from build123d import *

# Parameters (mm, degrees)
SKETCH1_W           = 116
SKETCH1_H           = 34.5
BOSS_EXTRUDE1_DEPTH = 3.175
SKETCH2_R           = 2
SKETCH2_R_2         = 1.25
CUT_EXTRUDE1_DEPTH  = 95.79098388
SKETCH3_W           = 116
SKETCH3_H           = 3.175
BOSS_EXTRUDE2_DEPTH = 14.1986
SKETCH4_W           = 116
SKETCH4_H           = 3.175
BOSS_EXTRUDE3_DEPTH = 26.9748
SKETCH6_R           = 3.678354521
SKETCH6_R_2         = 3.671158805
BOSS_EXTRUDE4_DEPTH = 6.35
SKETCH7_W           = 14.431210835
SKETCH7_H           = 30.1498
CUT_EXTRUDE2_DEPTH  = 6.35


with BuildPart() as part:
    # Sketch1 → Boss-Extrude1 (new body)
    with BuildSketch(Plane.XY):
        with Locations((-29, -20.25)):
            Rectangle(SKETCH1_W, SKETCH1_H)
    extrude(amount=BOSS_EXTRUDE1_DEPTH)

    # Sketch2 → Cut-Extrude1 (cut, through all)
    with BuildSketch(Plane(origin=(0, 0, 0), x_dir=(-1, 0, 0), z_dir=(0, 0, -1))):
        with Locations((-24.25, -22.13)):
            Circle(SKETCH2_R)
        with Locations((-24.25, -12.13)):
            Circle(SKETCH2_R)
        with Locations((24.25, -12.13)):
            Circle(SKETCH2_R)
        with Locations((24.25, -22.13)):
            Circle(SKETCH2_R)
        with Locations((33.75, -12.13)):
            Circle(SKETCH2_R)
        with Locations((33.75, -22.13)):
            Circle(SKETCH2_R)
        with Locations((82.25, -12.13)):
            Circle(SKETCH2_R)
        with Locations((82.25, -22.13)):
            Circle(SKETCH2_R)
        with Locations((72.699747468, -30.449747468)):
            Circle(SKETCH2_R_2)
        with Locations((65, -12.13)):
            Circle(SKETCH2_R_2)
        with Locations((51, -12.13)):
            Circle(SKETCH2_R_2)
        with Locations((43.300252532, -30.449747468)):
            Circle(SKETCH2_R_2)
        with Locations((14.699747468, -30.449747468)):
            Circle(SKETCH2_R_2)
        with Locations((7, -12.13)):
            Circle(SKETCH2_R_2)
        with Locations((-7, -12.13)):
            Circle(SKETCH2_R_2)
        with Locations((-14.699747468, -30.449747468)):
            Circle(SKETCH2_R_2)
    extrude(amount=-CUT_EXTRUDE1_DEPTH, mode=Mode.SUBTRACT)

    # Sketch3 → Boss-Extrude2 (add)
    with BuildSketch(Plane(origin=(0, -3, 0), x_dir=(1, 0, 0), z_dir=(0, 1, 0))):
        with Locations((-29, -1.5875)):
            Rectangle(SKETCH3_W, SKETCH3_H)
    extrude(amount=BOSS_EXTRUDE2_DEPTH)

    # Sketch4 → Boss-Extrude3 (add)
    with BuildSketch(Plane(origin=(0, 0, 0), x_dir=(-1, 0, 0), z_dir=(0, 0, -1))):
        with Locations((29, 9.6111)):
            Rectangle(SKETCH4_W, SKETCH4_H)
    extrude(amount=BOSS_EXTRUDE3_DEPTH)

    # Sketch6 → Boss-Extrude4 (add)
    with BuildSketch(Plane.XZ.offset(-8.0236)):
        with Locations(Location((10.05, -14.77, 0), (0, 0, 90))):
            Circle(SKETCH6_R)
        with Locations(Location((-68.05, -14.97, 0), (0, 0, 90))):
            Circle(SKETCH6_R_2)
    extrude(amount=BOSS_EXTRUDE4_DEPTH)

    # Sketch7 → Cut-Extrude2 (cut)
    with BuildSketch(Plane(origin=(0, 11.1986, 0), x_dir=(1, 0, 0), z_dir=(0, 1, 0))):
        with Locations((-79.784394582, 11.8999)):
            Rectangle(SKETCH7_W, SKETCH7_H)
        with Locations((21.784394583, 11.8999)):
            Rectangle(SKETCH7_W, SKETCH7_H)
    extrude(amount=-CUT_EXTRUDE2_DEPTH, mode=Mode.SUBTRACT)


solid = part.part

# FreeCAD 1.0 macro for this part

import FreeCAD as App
import Part
import Sketcher
Q = App.Units.Quantity

doc = App.newDocument("Part")
body = doc.addObject("PartDesign::Body", "Body")

# Sketch on XY plane
sketch1 = body.newObject("Sketcher::SketchObject", "Sketch")
sketch1.AttachmentSupport = (doc.getObject("XY_Plane"), [""])
sketch1.MapMode = "FlatFace"
sketch1.addGeometry([
    Part.LineSegment(App.Vector(-87, -3, 0), App.Vector(-87, -38, 0)),
    Part.LineSegment(App.Vector(-87, -38, 0), App.Vector(29, -38, 0)),
    Part.LineSegment(App.Vector(29, -38, 0), App.Vector(29, -3, 0)),
    Part.LineSegment(App.Vector(29, -3, 0), App.Vector(-87, -3, 0)),
], False)
sketch1.addConstraint([
    Sketcher.Constraint("Coincident", 0, 2, 1, 1),
    Sketcher.Constraint("Coincident", 1, 2, 2, 1),
    Sketcher.Constraint("Coincident", 2, 2, 3, 1),
    Sketcher.Constraint("Coincident", 3, 2, 0, 1),
    Sketcher.Constraint("Vertical", 0),
    Sketcher.Constraint("Horizontal", 1),
    Sketcher.Constraint("Vertical", 2),
    Sketcher.Constraint("Horizontal", 3),
    Sketcher.Constraint("DistanceX", 1, 1, 1, 2, 116.0),
    Sketcher.Constraint("DistanceY", 0, 2, 0, 1, 34.5),
    Sketcher.Constraint("DistanceX", 0, 2, -1, 1, 87.0),
    Sketcher.Constraint("DistanceY", 0, 2, -1, 1, 37.5),
])
pad1 = body.newObject("PartDesign::Pad", "Pad")
pad1.Profile = sketch1
pad1.Length = Q("0.125 in")

# Sketch on XY plane
sketch2 = body.newObject("Sketcher::SketchObject", "Sketch001")
sketch2.AttachmentSupport = (doc.getObject("XY_Plane"), [""])
sketch2.MapMode = "FlatFace"
sketch2.addGeometry([
    Part.Circle(App.Vector(24.2, -22.1, 0), App.Vector(0, 0, 1), 2),  # 0
    Part.Circle(App.Vector(24.2, -12.1, 0), App.Vector(0, 0, 1), 2),  # 1
    Part.Circle(App.Vector(-24.2, -12.1, 0), App.Vector(0, 0, 1), 2),  # 2
    Part.Circle(App.Vector(-24.2, -22.1, 0), App.Vector(0, 0, 1), 2),  # 3
    Part.Circle(App.Vector(-33.8, -12.1, 0), App.Vector(0, 0, 1), 2),  # 4
    Part.Circle(App.Vector(-33.8, -22.1, 0), App.Vector(0, 0, 1), 2),  # 5
    Part.Circle(App.Vector(-82.2, -12.1, 0), App.Vector(0, 0, 1), 2),  # 6
    Part.Circle(App.Vector(-82.2, -22.1, 0), App.Vector(0, 0, 1), 2),  # 7
    Part.Circle(App.Vector(-72.7, -30.4, 0), App.Vector(0, 0, 1), 1.2),  # 8
    Part.Circle(App.Vector(-65, -12.1, 0), App.Vector(0, 0, 1), 1.2),  # 9
    Part.Circle(App.Vector(-51, -12.1, 0), App.Vector(0, 0, 1), 1.2),  # 10
    Part.Circle(App.Vector(-43.3, -30.4, 0), App.Vector(0, 0, 1), 1.2),  # 11
    Part.Circle(App.Vector(-14.7, -30.4, 0), App.Vector(0, 0, 1), 1.2),  # 12
    Part.Circle(App.Vector(-7, -12.1, 0), App.Vector(0, 0, 1), 1.2),  # 13
    Part.Circle(App.Vector(7, -12.1, 0), App.Vector(0, 0, 1), 1.2),  # 14
    Part.Circle(App.Vector(14.7, -30.4, 0), App.Vector(0, 0, 1), 1.2),  # 15
], False)
sketch2.addConstraint([
    Sketcher.Constraint("Equal", 0, 1),
    Sketcher.Constraint("Equal", 1, 2),
    Sketcher.Constraint("Equal", 2, 3),
    Sketcher.Constraint("Equal", 3, 4),
    Sketcher.Constraint("Equal", 4, 5),
    Sketcher.Constraint("Equal", 5, 6),
    Sketcher.Constraint("Equal", 6, 7),
    Sketcher.Constraint("Equal", 8, 9),
    Sketcher.Constraint("Equal", 9, 10),
    Sketcher.Constraint("Equal", 10, 11),
    Sketcher.Constraint("Equal", 11, 12),
    Sketcher.Constraint("Equal", 12, 13),
    Sketcher.Constraint("Equal", 13, 14),
    Sketcher.Constraint("Equal", 14, 15),
    Sketcher.Constraint("Symmetric", 1, 3, 2, 3, -2),
    Sketcher.Constraint("Symmetric", 0, 3, 3, 3, -2),
    Sketcher.Constraint("Symmetric", 13, 3, 14, 3, -2),
    Sketcher.Constraint("Symmetric", 12, 3, 15, 3, -2),
    Sketcher.Constraint("Horizontal", 2, 3, 4, 3),
    Sketcher.Constraint("Horizontal", 3, 3, 5, 3),
    Sketcher.Constraint("Horizontal", 4, 3, 6, 3),
    Sketcher.Constraint("Horizontal", 5, 3, 7, 3),
    Sketcher.Constraint("Horizontal", 6, 3, 9, 3),
    Sketcher.Constraint("Horizontal", 9, 3, 10, 3),
    Sketcher.Constraint("Horizontal", 8, 3, 11, 3),
    Sketcher.Constraint("Horizontal", 11, 3, 12, 3),
    Sketcher.Constraint("Horizontal", 10, 3, 13, 3),
    Sketcher.Constraint("Vertical", 0, 3, 1, 3),
    Sketcher.Constraint("Vertical", 4, 3, 5, 3),
    Sketcher.Constraint("Vertical", 6, 3, 7, 3),
    Sketcher.Constraint("Diameter", 0, 4.0),
    Sketcher.Constraint("Diameter", 8, 2.5),
    Sketcher.Constraint("DistanceX", -1, 1, 0, 3, 24.25),
    Sketcher.Constraint("DistanceY", 0, 3, -1, 1, 22.13),
    Sketcher.Constraint("DistanceY", 1, 3, -1, 1, 12.13),
    Sketcher.Constraint("DistanceX", 4, 3, -1, 1, 33.75),
    Sketcher.Constraint("DistanceX", 6, 3, -1, 1, 82.25),
    Sketcher.Constraint("DistanceX", 9, 3, -1, 1, 65.0),
    Sketcher.Constraint("DistanceX", 10, 3, -1, 1, 51.0),
    Sketcher.Constraint("DistanceX", 13, 3, -1, 1, 7.0),
    Sketcher.Constraint("DistanceX", 8, 3, -1, 1, 72.699747),
    Sketcher.Constraint("DistanceY", 8, 3, -1, 1, 30.449747),
    Sketcher.Constraint("DistanceX", 11, 3, -1, 1, 43.300253),
    Sketcher.Constraint("DistanceX", 12, 3, -1, 1, 14.699747),
])
pocket1 = body.newObject("PartDesign::Pocket", "Pocket")
pocket1.Profile = sketch2
pocket1.Type = "ThroughAll"
pocket1.Reversed = True

# Sketch on XZ plane
sketch3 = body.newObject("Sketcher::SketchObject", "Sketch002")
sketch3.AttachmentSupport = (doc.getObject("XZ_Plane"), [""])
sketch3.MapMode = "FlatFace"
sketch3.AttachmentOffset = App.Placement(App.Vector(0, 0, 3), App.Rotation())
sketch3.addGeometry([
    Part.LineSegment(App.Vector(-87, 0, 0), App.Vector(-87, 3.2, 0)),
    Part.LineSegment(App.Vector(-87, 3.2, 0), App.Vector(29, 3.2, 0)),
    Part.LineSegment(App.Vector(29, 3.2, 0), App.Vector(29, 0, 0)),
    Part.LineSegment(App.Vector(29, 0, 0), App.Vector(-87, 0, 0)),
], False)
sketch3.addConstraint([
    Sketcher.Constraint("Coincident", 0, 2, 1, 1),
    Sketcher.Constraint("Coincident", 1, 2, 2, 1),
    Sketcher.Constraint("Coincident", 2, 2, 3, 1),
    Sketcher.Constraint("Coincident", 3, 2, 0, 1),
    Sketcher.Constraint("Vertical", 0),
    Sketcher.Constraint("Horizontal", 1),
    Sketcher.Constraint("Vertical", 2),
    Sketcher.Constraint("Horizontal", 3),
    Sketcher.Constraint("PointOnObject", 2, 2, -1),
    Sketcher.Constraint("DistanceY", 0, 1, 0, 2, Q("0.125 in")),
    Sketcher.Constraint("DistanceX", 1, 1, 1, 2, 116.0),
    Sketcher.Constraint("DistanceX", 0, 2, -1, 1, 87.0),
])
pad2 = body.newObject("PartDesign::Pad", "Pad001")
pad2.Profile = sketch3
pad2.Length = Q("0.559 in")
pad2.Reversed = True

# Sketch on XY plane
sketch4 = body.newObject("Sketcher::SketchObject", "Sketch003")
sketch4.AttachmentSupport = (doc.getObject("XY_Plane"), [""])
sketch4.MapMode = "FlatFace"
sketch4.addGeometry([
    Part.LineSegment(App.Vector(29, 11.2, 0), App.Vector(29, 8, 0)),
    Part.LineSegment(App.Vector(29, 8, 0), App.Vector(-87, 8, 0)),
    Part.LineSegment(App.Vector(-87, 8, 0), App.Vector(-87, 11.2, 0)),
    Part.LineSegment(App.Vector(-87, 11.2, 0), App.Vector(29, 11.2, 0)),
], False)
sketch4.addConstraint([
    Sketcher.Constraint("Coincident", 0, 2, 1, 1),
    Sketcher.Constraint("Coincident", 1, 2, 2, 1),
    Sketcher.Constraint("Coincident", 2, 2, 3, 1),
    Sketcher.Constraint("Coincident", 3, 2, 0, 1),
    Sketcher.Constraint("Vertical", 0),
    Sketcher.Constraint("Horizontal", 1),
    Sketcher.Constraint("Vertical", 2),
    Sketcher.Constraint("Horizontal", 3),
    Sketcher.Constraint("DistanceY", 0, 2, 0, 1, Q("0.125 in")),
    Sketcher.Constraint("DistanceX", 1, 2, 1, 1, 116.0),
    Sketcher.Constraint("DistanceX", -1, 1, 0, 2, 29.0),
    Sketcher.Constraint("DistanceY", -1, 1, 0, 2, 8.0236),
])
pad3 = body.newObject("PartDesign::Pad", "Pad002")
pad3.Profile = sketch4
pad3.Length = Q("1.062 in")
pad3.Reversed = True

# Sketch on XZ plane
sketch5 = body.newObject("Sketcher::SketchObject", "Sketch004")
sketch5.AttachmentSupport = (doc.getObject("XZ_Plane"), [""])
sketch5.MapMode = "FlatFace"
sketch5.AttachmentOffset = App.Placement(App.Vector(0, 0, -8.0236), App.Rotation())
sketch5.addGeometry([
    Part.Circle(App.Vector(10.1, -14.8, 0), App.Vector(0, 0, 1), 3.7),
    Part.Circle(App.Vector(-68, -15, 0), App.Vector(0, 0, 1), 3.7),
], False)
sketch5.addConstraint([
    Sketcher.Constraint("Diameter", 0, 7.356709),
    Sketcher.Constraint("Diameter", 1, 7.342318),
    Sketcher.Constraint("DistanceX", -1, 1, 0, 3, 10.05),
    Sketcher.Constraint("DistanceY", 0, 3, -1, 1, 14.77),
    Sketcher.Constraint("DistanceX", 1, 3, -1, 1, 68.05),
    Sketcher.Constraint("DistanceY", 1, 3, -1, 1, 14.97),
])
pad4 = body.newObject("PartDesign::Pad", "Pad003")
pad4.Profile = sketch5
pad4.Length = Q("0.25 in")

# Sketch on XZ plane
sketch6 = body.newObject("Sketcher::SketchObject", "Sketch005")
sketch6.AttachmentSupport = (doc.getObject("XZ_Plane"), [""])
sketch6.MapMode = "FlatFace"
sketch6.AttachmentOffset = App.Placement(App.Vector(0, 0, -11.1986), App.Rotation())
sketch6.addGeometry([
    Part.LineSegment(App.Vector(-87, -27, 0), App.Vector(-87, 3, 0)),  # 0
    Part.LineSegment(App.Vector(-87, 3, 0), App.Vector(-73, 3, 0)),  # 1
    Part.LineSegment(App.Vector(-73, 3, 0), App.Vector(-73, -27, 0)),  # 2
    Part.LineSegment(App.Vector(-73, -27, 0), App.Vector(-87, -27, 0)),  # 3
    Part.LineSegment(App.Vector(15, -27, 0), App.Vector(15, 3, 0)),  # 4
    Part.LineSegment(App.Vector(15, 3, 0), App.Vector(29, 3, 0)),  # 5
    Part.LineSegment(App.Vector(29, 3, 0), App.Vector(29, -27, 0)),  # 6
    Part.LineSegment(App.Vector(29, -27, 0), App.Vector(15, -27, 0)),  # 7
], False)
sketch6.addConstraint([
    Sketcher.Constraint("Coincident", 0, 2, 1, 1),
    Sketcher.Constraint("Coincident", 1, 2, 2, 1),
    Sketcher.Constraint("Coincident", 2, 2, 3, 1),
    Sketcher.Constraint("Coincident", 3, 2, 0, 1),
    Sketcher.Constraint("Coincident", 4, 2, 5, 1),
    Sketcher.Constraint("Coincident", 5, 2, 6, 1),
    Sketcher.Constraint("Coincident", 6, 2, 7, 1),
    Sketcher.Constraint("Coincident", 7, 2, 4, 1),
    Sketcher.Constraint("Vertical", 0),
    Sketcher.Constraint("Horizontal", 1),
    Sketcher.Constraint("Vertical", 2),
    Sketcher.Constraint("Horizontal", 3),
    Sketcher.Constraint("Vertical", 4),
    Sketcher.Constraint("Horizontal", 5),
    Sketcher.Constraint("Vertical", 6),
    Sketcher.Constraint("Horizontal", 7),
    Sketcher.Constraint("Horizontal", 1, 2, 4, 2),
    Sketcher.Constraint("Horizontal", 3, 2, 6, 2),
    Sketcher.Constraint("Equal", 3, 5),
    Sketcher.Constraint("DistanceY", 0, 1, 0, 2, Q("1.187 in")),
    Sketcher.Constraint("DistanceY", -1, 1, 0, 2, Q("0.125 in")),
    Sketcher.Constraint("DistanceX", 1, 1, 1, 2, 14.431211),
    Sketcher.Constraint("DistanceX", 0, 2, -1, 1, 87.0),
    Sketcher.Constraint("DistanceX", -1, 1, 5, 2, 29.0),
])
pocket2 = body.newObject("PartDesign::Pocket", "Pocket001")
pocket2.Profile = sketch6
pocket2.Length = Q("0.25 in")
pocket2.Reversed = True

doc.recompute()
